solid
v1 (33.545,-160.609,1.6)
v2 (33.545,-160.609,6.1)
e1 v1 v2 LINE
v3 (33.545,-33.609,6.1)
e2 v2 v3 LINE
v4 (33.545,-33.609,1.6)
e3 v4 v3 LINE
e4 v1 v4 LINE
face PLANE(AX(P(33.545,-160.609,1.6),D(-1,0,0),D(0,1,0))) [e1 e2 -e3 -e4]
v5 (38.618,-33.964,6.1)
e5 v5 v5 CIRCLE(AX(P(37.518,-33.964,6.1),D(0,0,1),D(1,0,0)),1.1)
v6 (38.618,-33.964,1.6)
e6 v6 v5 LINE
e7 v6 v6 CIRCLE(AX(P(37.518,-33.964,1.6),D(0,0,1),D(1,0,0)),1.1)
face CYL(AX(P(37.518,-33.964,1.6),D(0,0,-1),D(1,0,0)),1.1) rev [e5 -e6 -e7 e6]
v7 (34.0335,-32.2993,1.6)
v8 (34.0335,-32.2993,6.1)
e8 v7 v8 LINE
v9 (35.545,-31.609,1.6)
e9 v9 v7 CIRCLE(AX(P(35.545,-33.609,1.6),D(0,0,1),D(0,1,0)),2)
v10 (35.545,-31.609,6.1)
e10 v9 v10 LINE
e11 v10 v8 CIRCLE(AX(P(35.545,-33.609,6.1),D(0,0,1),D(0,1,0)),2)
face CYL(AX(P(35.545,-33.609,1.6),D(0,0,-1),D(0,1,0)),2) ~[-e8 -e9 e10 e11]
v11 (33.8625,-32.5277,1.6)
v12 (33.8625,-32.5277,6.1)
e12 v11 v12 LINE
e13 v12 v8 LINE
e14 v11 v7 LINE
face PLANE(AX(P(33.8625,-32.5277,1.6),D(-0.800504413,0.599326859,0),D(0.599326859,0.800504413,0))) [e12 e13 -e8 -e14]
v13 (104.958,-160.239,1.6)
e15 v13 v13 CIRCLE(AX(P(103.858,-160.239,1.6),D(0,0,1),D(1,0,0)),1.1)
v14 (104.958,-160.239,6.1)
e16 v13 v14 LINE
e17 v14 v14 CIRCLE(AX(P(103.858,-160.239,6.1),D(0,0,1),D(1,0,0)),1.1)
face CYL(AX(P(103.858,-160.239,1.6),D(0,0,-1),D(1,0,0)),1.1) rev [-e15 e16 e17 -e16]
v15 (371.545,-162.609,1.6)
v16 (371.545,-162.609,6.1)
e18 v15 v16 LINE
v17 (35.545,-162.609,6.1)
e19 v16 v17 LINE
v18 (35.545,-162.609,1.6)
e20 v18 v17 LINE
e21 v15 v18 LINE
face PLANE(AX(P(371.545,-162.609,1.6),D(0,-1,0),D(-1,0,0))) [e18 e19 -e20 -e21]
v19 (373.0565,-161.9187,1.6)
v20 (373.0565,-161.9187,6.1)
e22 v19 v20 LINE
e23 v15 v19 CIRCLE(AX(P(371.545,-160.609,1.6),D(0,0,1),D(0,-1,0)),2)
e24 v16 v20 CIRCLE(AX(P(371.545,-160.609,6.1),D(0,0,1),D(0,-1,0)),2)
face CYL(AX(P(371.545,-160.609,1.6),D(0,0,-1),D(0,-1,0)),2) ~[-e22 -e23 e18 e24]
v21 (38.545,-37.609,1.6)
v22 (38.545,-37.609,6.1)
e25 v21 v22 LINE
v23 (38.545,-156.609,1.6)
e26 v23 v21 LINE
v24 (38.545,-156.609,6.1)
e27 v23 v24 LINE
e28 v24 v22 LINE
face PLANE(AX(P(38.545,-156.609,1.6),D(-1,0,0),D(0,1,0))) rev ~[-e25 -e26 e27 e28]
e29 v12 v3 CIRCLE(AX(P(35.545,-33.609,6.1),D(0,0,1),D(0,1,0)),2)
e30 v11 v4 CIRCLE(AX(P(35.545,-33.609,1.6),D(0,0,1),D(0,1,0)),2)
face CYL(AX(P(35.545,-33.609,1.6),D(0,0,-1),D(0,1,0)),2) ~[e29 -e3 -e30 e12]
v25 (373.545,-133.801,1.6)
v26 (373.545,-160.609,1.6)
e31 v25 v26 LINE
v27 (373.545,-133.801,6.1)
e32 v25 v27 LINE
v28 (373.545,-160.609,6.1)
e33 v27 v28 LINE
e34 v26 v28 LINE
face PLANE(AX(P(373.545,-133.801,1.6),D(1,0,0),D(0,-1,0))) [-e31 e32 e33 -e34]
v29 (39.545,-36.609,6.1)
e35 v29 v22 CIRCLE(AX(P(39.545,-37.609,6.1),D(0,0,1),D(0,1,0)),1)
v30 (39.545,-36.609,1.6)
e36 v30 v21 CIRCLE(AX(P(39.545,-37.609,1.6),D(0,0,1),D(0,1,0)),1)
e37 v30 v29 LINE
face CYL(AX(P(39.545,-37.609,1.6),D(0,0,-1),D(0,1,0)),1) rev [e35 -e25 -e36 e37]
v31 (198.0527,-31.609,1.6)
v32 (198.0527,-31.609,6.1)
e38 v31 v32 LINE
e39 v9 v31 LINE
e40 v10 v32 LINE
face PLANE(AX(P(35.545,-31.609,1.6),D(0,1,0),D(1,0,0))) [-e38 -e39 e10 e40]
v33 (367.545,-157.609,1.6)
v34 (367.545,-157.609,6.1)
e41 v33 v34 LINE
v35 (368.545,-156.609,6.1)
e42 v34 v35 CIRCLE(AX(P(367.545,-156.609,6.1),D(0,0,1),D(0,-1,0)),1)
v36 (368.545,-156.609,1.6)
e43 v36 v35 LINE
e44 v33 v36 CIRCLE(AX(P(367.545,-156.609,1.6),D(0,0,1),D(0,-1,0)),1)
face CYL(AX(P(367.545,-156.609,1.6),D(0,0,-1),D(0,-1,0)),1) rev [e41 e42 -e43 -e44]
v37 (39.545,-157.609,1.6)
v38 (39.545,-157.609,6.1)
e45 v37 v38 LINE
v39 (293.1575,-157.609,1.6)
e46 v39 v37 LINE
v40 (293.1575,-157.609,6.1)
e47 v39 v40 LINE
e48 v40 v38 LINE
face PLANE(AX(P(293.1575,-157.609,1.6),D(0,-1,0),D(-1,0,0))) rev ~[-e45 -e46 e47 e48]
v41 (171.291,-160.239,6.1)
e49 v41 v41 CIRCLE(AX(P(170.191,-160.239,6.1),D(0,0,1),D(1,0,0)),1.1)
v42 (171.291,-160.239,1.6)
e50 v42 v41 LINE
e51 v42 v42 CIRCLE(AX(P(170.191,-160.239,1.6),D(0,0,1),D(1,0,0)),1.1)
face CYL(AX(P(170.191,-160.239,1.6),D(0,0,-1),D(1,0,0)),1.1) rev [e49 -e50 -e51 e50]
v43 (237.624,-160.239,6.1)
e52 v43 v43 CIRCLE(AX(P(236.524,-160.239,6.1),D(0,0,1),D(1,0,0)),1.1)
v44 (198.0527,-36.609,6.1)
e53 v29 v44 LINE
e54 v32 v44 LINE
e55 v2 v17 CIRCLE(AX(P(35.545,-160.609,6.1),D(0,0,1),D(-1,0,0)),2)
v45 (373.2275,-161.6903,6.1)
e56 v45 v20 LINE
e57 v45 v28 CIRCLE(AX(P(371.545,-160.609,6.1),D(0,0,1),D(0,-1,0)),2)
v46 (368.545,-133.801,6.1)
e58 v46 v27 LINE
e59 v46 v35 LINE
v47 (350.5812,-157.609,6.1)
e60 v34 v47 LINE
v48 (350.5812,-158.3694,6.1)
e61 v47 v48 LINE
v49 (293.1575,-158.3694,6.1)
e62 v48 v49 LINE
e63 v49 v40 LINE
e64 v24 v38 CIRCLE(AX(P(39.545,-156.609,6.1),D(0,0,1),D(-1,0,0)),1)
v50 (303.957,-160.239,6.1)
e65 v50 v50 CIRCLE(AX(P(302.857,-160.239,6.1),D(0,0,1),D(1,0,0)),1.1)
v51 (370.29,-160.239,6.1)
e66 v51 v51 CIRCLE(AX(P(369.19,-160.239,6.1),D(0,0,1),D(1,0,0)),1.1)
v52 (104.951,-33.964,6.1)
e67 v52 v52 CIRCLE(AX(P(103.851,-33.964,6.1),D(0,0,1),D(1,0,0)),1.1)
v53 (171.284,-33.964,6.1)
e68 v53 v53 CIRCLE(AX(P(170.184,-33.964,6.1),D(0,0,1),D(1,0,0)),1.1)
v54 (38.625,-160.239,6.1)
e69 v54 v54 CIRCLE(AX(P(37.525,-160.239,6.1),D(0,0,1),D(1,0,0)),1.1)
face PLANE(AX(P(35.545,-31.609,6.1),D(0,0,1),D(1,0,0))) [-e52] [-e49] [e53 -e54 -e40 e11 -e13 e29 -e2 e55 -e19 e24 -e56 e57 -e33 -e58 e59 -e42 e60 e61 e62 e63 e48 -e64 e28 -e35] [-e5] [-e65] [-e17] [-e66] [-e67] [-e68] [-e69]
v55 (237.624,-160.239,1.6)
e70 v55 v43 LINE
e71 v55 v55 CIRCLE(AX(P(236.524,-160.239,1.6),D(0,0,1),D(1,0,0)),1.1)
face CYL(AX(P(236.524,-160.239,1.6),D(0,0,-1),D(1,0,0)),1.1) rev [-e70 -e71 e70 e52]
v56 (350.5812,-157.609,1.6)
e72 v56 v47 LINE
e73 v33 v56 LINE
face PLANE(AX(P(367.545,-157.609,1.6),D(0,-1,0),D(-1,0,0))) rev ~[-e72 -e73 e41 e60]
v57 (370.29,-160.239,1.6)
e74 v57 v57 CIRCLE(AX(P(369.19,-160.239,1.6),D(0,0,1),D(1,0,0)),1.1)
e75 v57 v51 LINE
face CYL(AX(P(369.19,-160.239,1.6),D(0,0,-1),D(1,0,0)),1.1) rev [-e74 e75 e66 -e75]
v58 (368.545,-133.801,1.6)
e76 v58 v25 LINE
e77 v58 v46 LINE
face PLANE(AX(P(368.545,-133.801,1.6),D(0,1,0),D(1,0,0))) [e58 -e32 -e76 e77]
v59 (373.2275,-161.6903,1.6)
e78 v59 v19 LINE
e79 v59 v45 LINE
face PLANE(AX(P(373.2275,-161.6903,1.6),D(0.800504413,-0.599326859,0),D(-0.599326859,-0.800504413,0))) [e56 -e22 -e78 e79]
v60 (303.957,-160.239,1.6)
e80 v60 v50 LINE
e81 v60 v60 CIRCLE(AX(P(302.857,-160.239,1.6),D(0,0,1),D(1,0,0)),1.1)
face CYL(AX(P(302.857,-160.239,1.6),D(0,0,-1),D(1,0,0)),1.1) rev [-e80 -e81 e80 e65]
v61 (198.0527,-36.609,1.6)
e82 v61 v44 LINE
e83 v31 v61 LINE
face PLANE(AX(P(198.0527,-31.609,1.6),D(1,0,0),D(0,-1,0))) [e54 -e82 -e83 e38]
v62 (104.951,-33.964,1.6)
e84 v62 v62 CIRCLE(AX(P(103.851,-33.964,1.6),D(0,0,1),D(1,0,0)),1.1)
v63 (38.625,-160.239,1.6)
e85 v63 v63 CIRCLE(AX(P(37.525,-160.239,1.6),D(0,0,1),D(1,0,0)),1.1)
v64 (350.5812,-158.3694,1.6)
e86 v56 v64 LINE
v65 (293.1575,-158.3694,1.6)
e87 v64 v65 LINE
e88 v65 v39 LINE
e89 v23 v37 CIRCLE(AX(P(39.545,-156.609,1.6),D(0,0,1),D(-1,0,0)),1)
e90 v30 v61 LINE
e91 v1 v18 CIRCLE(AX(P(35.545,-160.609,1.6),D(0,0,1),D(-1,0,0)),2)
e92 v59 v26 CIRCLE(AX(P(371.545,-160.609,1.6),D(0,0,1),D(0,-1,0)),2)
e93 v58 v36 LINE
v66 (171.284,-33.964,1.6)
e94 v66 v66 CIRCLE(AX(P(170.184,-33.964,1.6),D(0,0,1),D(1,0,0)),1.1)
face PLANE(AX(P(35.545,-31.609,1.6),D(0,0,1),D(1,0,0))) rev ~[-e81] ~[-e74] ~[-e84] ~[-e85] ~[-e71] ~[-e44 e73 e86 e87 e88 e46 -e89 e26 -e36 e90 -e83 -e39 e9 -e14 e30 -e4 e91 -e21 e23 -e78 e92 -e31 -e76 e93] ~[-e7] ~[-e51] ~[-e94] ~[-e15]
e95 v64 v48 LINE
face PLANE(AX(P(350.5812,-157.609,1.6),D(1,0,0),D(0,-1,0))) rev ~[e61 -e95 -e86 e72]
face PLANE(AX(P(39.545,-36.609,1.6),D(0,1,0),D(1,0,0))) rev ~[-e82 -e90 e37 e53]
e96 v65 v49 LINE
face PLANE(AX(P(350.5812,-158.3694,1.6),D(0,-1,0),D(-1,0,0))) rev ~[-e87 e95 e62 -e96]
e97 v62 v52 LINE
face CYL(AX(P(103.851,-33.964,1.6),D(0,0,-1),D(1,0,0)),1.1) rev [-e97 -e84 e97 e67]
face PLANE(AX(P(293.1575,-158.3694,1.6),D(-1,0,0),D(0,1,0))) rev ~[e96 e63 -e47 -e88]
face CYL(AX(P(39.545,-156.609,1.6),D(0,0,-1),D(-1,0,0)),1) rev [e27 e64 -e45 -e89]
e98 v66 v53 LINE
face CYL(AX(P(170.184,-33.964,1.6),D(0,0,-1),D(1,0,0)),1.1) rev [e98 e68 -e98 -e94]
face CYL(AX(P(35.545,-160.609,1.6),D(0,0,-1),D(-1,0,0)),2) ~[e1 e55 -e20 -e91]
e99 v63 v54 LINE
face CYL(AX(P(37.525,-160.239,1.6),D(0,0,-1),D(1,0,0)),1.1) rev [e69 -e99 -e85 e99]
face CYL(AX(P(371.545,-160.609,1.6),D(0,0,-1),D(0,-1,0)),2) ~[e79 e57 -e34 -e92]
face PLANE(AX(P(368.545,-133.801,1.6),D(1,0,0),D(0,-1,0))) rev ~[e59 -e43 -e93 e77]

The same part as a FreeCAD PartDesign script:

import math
import FreeCAD as App
import Part
import Sketcher
from FreeCAD import Vector

doc = App.newDocument("Part")
body = doc.addObject("PartDesign::Body", "Body")

# Sketch on XY plane
sketch1 = body.newObject("Sketcher::SketchObject", "Sketch")
sketch1.AttachmentSupport = (doc.getObject("XY_Plane"), [""])
sketch1.MapMode = "FlatFace"
sketch1.AttachmentOffset = App.Placement(Vector(0, 0, 1.6), App.Rotation())
sketch1.addGeometry([
    Part.LineSegment(Vector(198.0527, -31.609, 0), Vector(35.545, -31.609, 0)),  # 0
    Part.ArcOfCircle(Part.Circle(Vector(35.545, -33.609, 0), Vector(0, 0, 1), 2), math.radians(90), math.radians(139.09139)),  # 1
    Part.LineSegment(Vector(34.0335, -32.2993, 0), Vector(33.8625, -32.5277, 0)),  # 2
    Part.ArcOfCircle(Part.Circle(Vector(35.545, -33.609, 0), Vector(0, 0, 1), 2), math.radians(147.272175), math.radians(180)),  # 3
    Part.LineSegment(Vector(33.545, -33.609, 0), Vector(33.545, -160.609, 0)),  # 4
    Part.ArcOfCircle(Part.Circle(Vector(35.545, -160.609, 0), Vector(0, 0, 1), 2), math.radians(180), math.radians(270)),  # 5
    Part.LineSegment(Vector(35.545, -162.609, 0), Vector(371.545, -162.609, 0)),  # 6
    Part.ArcOfCircle(Part.Circle(Vector(371.545, -160.609, 0), Vector(0, 0, 1), 2), math.radians(-90), math.radians(-40.90861)),  # 7
    Part.LineSegment(Vector(373.0565, -161.9187, 0), Vector(373.2275, -161.6903, 0)),  # 8
    Part.ArcOfCircle(Part.Circle(Vector(371.545, -160.609, 0), Vector(0, 0, 1), 2), math.radians(-32.727825), math.radians(0)),  # 9
    Part.LineSegment(Vector(373.545, -160.609, 0), Vector(373.545, -133.801, 0)),  # 10
    Part.LineSegment(Vector(373.545, -133.801, 0), Vector(368.545, -133.801, 0)),  # 11
    Part.LineSegment(Vector(368.545, -133.801, 0), Vector(368.545, -156.609, 0)),  # 12
    Part.ArcOfCircle(Part.Circle(Vector(367.545, -156.609, 0), Vector(0, 0, 1), 1), math.radians(-90), math.radians(0)),  # 13
    Part.LineSegment(Vector(367.545, -157.609, 0), Vector(350.5812, -157.609, 0)),  # 14
    Part.LineSegment(Vector(350.5812, -157.609, 0), Vector(350.5812, -158.3694, 0)),  # 15
    Part.LineSegment(Vector(350.5812, -158.3694, 0), Vector(293.1575, -158.3694, 0)),  # 16
    Part.LineSegment(Vector(293.1575, -158.3694, 0), Vector(293.1575, -157.609, 0)),  # 17
    Part.LineSegment(Vector(293.1575, -157.609, 0), Vector(39.545, -157.609, 0)),  # 18
    Part.ArcOfCircle(Part.Circle(Vector(39.545, -156.609, 0), Vector(0, 0, 1), 1), math.radians(180), math.radians(270)),  # 19
    Part.LineSegment(Vector(38.545, -156.609, 0), Vector(38.545, -37.609, 0)),  # 20
    Part.ArcOfCircle(Part.Circle(Vector(39.545, -37.609, 0), Vector(0, 0, 1), 1), math.radians(90), math.radians(180)),  # 21
    Part.LineSegment(Vector(39.545, -36.609, 0), Vector(198.0527, -36.609, 0)),  # 22
    Part.LineSegment(Vector(198.0527, -36.609, 0), Vector(198.0527, -31.609, 0)),  # 23
    Part.Circle(Vector(37.525, -160.239, 0), Vector(0, 0, 1), 1.1),  # 24
    Part.Circle(Vector(103.858, -160.239, 0), Vector(0, 0, 1), 1.1),  # 25
    Part.Circle(Vector(170.191, -160.239, 0), Vector(0, 0, 1), 1.1),  # 26
    Part.Circle(Vector(236.524, -160.239, 0), Vector(0, 0, 1), 1.1),  # 27
    Part.Circle(Vector(302.857, -160.239, 0), Vector(0, 0, 1), 1.1),  # 28
    Part.Circle(Vector(369.19, -160.239, 0), Vector(0, 0, 1), 1.1),  # 29
    Part.Circle(Vector(37.518, -33.964, 0), Vector(0, 0, 1), 1.1),  # 30
    Part.Circle(Vector(103.851, -33.964, 0), Vector(0, 0, 1), 1.1),  # 31
    Part.Circle(Vector(170.184, -33.964, 0), Vector(0, 0, 1), 1.1),  # 32
], False)
sketch1.addConstraint([
    Sketcher.Constraint("Tangent", 0, 2, 1, 1),
    Sketcher.Constraint("Coincident", 1, 2, 2, 1),
    Sketcher.Constraint("Coincident", 2, 2, 3, 1),
    Sketcher.Constraint("Tangent", 3, 2, 4, 1),
    Sketcher.Constraint("Tangent", 4, 2, 5, 1),
    Sketcher.Constraint("Tangent", 5, 2, 6, 1),
    Sketcher.Constraint("Tangent", 6, 2, 7, 1),
    Sketcher.Constraint("Coincident", 7, 2, 8, 1),
    Sketcher.Constraint("Coincident", 8, 2, 9, 1),
    Sketcher.Constraint("Tangent", 9, 2, 10, 1),
    Sketcher.Constraint("Coincident", 10, 2, 11, 1),
    Sketcher.Constraint("Coincident", 11, 2, 12, 1),
    Sketcher.Constraint("Tangent", 12, 2, 13, 2),
    Sketcher.Constraint("Tangent", 13, 1, 14, 1),
    Sketcher.Constraint("Coincident", 14, 2, 15, 1),
    Sketcher.Constraint("Coincident", 15, 2, 16, 1),
    Sketcher.Constraint("Coincident", 16, 2, 17, 1),
    Sketcher.Constraint("Coincident", 17, 2, 18, 1),
    Sketcher.Constraint("Tangent", 18, 2, 19, 2),
    Sketcher.Constraint("Tangent", 19, 1, 20, 1),
    Sketcher.Constraint("Tangent", 20, 2, 21, 2),
    Sketcher.Constraint("Tangent", 21, 1, 22, 1),
    Sketcher.Constraint("Coincident", 22, 2, 23, 1),
    Sketcher.Constraint("Coincident", 23, 2, 0, 1),
    Sketcher.Constraint("Horizontal", 0),
    Sketcher.Constraint("Vertical", 4),
    Sketcher.Constraint("Horizontal", 6),
    Sketcher.Constraint("Vertical", 10),
    Sketcher.Constraint("Horizontal", 11),
    Sketcher.Constraint("Vertical", 12),
    Sketcher.Constraint("Horizontal", 14),
    Sketcher.Constraint("Vertical", 15),
    Sketcher.Constraint("Horizontal", 16),
    Sketcher.Constraint("Vertical", 17),
    Sketcher.Constraint("Horizontal", 18),
    Sketcher.Constraint("Vertical", 20),
    Sketcher.Constraint("Horizontal", 22),
    Sketcher.Constraint("Vertical", 23),
    Sketcher.Constraint("Coincident", 3, 3, 1, 3),
    Sketcher.Constraint("Coincident", 9, 3, 7, 3),
    Sketcher.Constraint("Equal", 1, 3),
    Sketcher.Constraint("Equal", 3, 5),
    Sketcher.Constraint("Equal", 5, 7),
    Sketcher.Constraint("Equal", 7, 9),
    Sketcher.Constraint("Equal", 13, 19),
    Sketcher.Constraint("Equal", 19, 21),
    Sketcher.Constraint("Equal", 24, 25),
    Sketcher.Constraint("Equal", 25, 26),
    Sketcher.Constraint("Equal", 26, 27),
    Sketcher.Constraint("Equal", 27, 28),
    Sketcher.Constraint("Equal", 28, 29),
    Sketcher.Constraint("Equal", 29, 30),
    Sketcher.Constraint("Equal", 30, 31),
    Sketcher.Constraint("Equal", 31, 32),
    Sketcher.Constraint("Parallel", 2, 8),
    Sketcher.Constraint("Horizontal", 13, 3, 19, 3),
    Sketcher.Constraint("Horizontal", 24, 3, 25, 3),
    Sketcher.Constraint("Horizontal", 25, 3, 26, 3),
    Sketcher.Constraint("Horizontal", 26, 3, 27, 3),
    Sketcher.Constraint("Horizontal", 27, 3, 28, 3),
    Sketcher.Constraint("Horizontal", 28, 3, 29, 3),
    Sketcher.Constraint("Horizontal", 30, 3, 31, 3),
    Sketcher.Constraint("Horizontal", 31, 3, 32, 3),
    Sketcher.Constraint("Equal", 11, 23),
    Sketcher.Constraint("Equal", 2, 8),
    Sketcher.Constraint("Radius", 13, 1.0),
    Sketcher.Constraint("DistanceX", 11, 2, 11, 1, 5.0),
    Sketcher.Constraint("Radius", 1, 2.0),
    Sketcher.Constraint("DistanceY", 5, 2, 18, 2, 5.0),
    Sketcher.Constraint("DistanceX", 4, 2, 19, 1, 5.0),
    Sketcher.Constraint("Diameter", 24, 2.2),
    Sketcher.Constraint("DistanceX", 6, 1, 6, 2, 336.0),
    Sketcher.Constraint("DistanceY", 4, 2, 4, 1, 127.0),
    Sketcher.Constraint("DistanceY", 10, 1, 10, 2, 26.808),
    Sketcher.Constraint("DistanceX", -1, 1, 29, 3, 369.19),
    Sketcher.Constraint("DistanceX", 5, 3, 24, 3, 1.98),
    Sketcher.Constraint("DistanceY", 5, 3, 24, 3, 0.37),
    Sketcher.Constraint("DistanceX", 0, 2, 0, 1, 162.5077),
    Sketcher.Constraint("DistanceX", 14, 2, 14, 1, 16.9638),
    Sketcher.Constraint("DistanceX", 16, 2, 16, 1, 57.4237),
    Sketcher.Constraint("DistanceY", 15, 2, 15, 1, 0.7604),
    Sketcher.Constraint("DistanceX", -1, 1, 1, 3, 35.545),
    Sketcher.Constraint("DistanceY", 1, 3, -1, 1, 33.609),
    Sketcher.Constraint("DistanceX", -1, 1, 25, 3, 103.858),
    Sketcher.Constraint("DistanceX", -1, 1, 26, 3, 170.191),
    Sketcher.Constraint("DistanceX", -1, 1, 27, 3, 236.524),
    Sketcher.Constraint("DistanceX", -1, 1, 28, 3, 302.857),
    Sketcher.Constraint("DistanceX", -1, 1, 30, 3, 37.518),
    Sketcher.Constraint("DistanceY", 30, 3, -1, 1, 33.964),
    Sketcher.Constraint("DistanceX", -1, 1, 31, 3, 103.851),
    Sketcher.Constraint("DistanceX", -1, 1, 32, 3, 170.184),
    Sketcher.Constraint("DistanceX", 2, 2, 1, 2, 0.171),
    Sketcher.Constraint("Distance", 2, 0.2853),
])
pad1 = body.newObject("PartDesign::Pad", "Pad")
pad1.Profile = sketch1
pad1.Length = 4.5

doc.recompute()
